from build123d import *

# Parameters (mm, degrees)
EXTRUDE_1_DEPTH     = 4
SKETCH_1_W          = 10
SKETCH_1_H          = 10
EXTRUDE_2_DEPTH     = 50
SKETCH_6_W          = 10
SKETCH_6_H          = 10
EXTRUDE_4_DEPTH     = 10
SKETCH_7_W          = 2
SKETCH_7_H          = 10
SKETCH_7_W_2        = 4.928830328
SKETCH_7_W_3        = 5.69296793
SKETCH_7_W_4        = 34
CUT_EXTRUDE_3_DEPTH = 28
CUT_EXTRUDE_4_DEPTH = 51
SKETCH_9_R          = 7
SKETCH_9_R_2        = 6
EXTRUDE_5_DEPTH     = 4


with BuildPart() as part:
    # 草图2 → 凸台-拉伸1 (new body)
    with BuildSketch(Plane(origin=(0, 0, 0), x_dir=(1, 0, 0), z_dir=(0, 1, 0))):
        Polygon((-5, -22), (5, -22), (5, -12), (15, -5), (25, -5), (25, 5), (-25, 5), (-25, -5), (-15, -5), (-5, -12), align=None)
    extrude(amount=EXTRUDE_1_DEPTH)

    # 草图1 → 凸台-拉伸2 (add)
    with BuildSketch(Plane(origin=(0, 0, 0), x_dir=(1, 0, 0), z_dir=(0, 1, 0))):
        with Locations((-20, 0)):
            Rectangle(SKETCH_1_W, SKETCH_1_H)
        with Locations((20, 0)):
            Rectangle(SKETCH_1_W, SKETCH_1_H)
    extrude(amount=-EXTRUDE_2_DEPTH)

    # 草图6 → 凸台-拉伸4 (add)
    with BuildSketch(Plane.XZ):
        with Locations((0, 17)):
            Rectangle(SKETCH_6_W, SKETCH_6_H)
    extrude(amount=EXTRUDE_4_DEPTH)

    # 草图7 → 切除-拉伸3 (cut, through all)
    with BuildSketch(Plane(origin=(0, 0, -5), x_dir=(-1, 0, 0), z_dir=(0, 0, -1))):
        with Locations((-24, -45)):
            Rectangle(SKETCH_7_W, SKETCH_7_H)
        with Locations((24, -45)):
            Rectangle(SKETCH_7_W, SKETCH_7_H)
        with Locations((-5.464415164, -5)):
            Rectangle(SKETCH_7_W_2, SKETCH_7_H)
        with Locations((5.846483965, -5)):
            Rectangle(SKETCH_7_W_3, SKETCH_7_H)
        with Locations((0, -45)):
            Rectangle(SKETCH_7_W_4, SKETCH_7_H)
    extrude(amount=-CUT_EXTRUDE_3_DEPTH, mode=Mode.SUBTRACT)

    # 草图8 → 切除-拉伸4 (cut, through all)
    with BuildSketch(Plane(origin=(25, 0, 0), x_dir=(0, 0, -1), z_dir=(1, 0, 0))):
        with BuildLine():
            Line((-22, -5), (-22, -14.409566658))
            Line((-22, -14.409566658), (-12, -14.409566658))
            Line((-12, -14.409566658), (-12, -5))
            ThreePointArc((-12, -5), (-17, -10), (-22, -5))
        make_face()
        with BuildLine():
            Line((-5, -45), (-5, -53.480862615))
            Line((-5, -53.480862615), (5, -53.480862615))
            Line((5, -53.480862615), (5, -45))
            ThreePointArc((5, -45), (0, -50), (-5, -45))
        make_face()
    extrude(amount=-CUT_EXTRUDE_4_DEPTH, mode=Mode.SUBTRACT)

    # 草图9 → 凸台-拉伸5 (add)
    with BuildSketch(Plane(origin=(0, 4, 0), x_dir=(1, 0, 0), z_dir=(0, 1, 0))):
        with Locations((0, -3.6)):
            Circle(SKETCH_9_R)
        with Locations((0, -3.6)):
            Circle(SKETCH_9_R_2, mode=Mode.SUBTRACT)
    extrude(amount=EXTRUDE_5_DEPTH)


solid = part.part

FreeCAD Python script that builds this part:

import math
import FreeCAD as App
import Part
import Sketcher

V = App.Vector

doc = App.newDocument("Part")
body = doc.addObject("PartDesign::Body", "Body")

# Sketch on XZ plane
sketch1 = doc.addObject("Sketcher::SketchObject", "Sketch")
body.addObject(sketch1)
sketch1.AttachmentSupport = (doc.XZ_Plane, [""])
sketch1.MapMode = "FlatFace"
sketch1.addGeometry([
    Part.LineSegment(V(-5, 22, 0), V(5, 22, 0)),  # 0
    Part.LineSegment(V(5, 22, 0), V(5, 12, 0)),  # 1
    Part.LineSegment(V(5, 12, 0), V(15, 5, 0)),  # 2
    Part.LineSegment(V(15, 5, 0), V(25, 5, 0)),  # 3
    Part.LineSegment(V(25, 5, 0), V(25, -5, 0)),  # 4
    Part.LineSegment(V(25, -5, 0), V(-25, -5, 0)),  # 5
    Part.LineSegment(V(-25, -5, 0), V(-25, 5, 0)),  # 6
    Part.LineSegment(V(-25, 5, 0), V(-15, 5, 0)),  # 7
    Part.LineSegment(V(-15, 5, 0), V(-5, 12, 0)),  # 8
    Part.LineSegment(V(-5, 12, 0), V(-5, 22, 0)),  # 9
], False)
sketch1.addConstraint([
    Sketcher.Constraint("Coincident", 0, 2, 1, 1),
    Sketcher.Constraint("Coincident", 1, 2, 2, 1),
    Sketcher.Constraint("Coincident", 2, 2, 3, 1),
    Sketcher.Constraint("Coincident", 3, 2, 4, 1),
    Sketcher.Constraint("Coincident", 4, 2, 5, 1),
    Sketcher.Constraint("Coincident", 5, 2, 6, 1),
    Sketcher.Constraint("Coincident", 6, 2, 7, 1),
    Sketcher.Constraint("Coincident", 7, 2, 8, 1),
    Sketcher.Constraint("Coincident", 8, 2, 9, 1),
    Sketcher.Constraint("Coincident", 9, 2, 0, 1),
    Sketcher.Constraint("Horizontal", 0),
    Sketcher.Constraint("Vertical", 1),
    Sketcher.Constraint("Horizontal", 3),
    Sketcher.Constraint("Vertical", 4),
    Sketcher.Constraint("Horizontal", 5),
    Sketcher.Constraint("Vertical", 6),
    Sketcher.Constraint("Horizontal", 7),
    Sketcher.Constraint("Vertical", 9),
    Sketcher.Constraint("Symmetric", 3, 2, 5, 2, -1, 1),
    Sketcher.Constraint("Symmetric", 2, 2, 7, 2, -2),
    Sketcher.Constraint("Symmetric", 1, 2, 8, 2, -2),
    Sketcher.Constraint("Equal", 0, 3),
    Sketcher.Constraint("Equal", 7, 1),
    Sketcher.Constraint("Equal", 1, 4),
    Sketcher.Constraint("DistanceX", 0, 1, 0, 2, 10.0),
    Sketcher.Constraint("DistanceX", 5, 2, 5, 1, 50.0),
    Sketcher.Constraint("DistanceY", -1, 1, 0, 2, 22.0),
])
pad1 = doc.addObject("PartDesign::Pad", "Pad")
body.addObject(pad1)
pad1.Profile = sketch1
pad1.Length = 4
pad1.Reversed = True

# Sketch on XZ plane
sketch2 = doc.addObject("Sketcher::SketchObject", "Sketch001")
body.addObject(sketch2)
sketch2.AttachmentSupport = (doc.XZ_Plane, [""])
sketch2.MapMode = "FlatFace"
sketch2.addGeometry([
    Part.LineSegment(V(-25, -5, 0), V(-25, 5, 0)),  # 0
    Part.LineSegment(V(-25, 5, 0), V(-15, 5, 0)),  # 1
    Part.LineSegment(V(-15, 5, 0), V(-15, -5, 0)),  # 2
    Part.LineSegment(V(-15, -5, 0), V(-25, -5, 0)),  # 3
    Part.LineSegment(V(15, -5, 0), V(15, 5, 0)),  # 4
    Part.LineSegment(V(15, 5, 0), V(25, 5, 0)),  # 5
    Part.LineSegment(V(25, 5, 0), V(25, -5, 0)),  # 6
    Part.LineSegment(V(25, -5, 0), V(15, -5, 0)),  # 7
], False)
sketch2.addConstraint([
    Sketcher.Constraint("Coincident", 0, 2, 1, 1),
    Sketcher.Constraint("Coincident", 1, 2, 2, 1),
    Sketcher.Constraint("Coincident", 2, 2, 3, 1),
    Sketcher.Constraint("Coincident", 3, 2, 0, 1),
    Sketcher.Constraint("Coincident", 4, 2, 5, 1),
    Sketcher.Constraint("Coincident", 5, 2, 6, 1),
    Sketcher.Constraint("Coincident", 6, 2, 7, 1),
    Sketcher.Constraint("Coincident", 7, 2, 4, 1),
    Sketcher.Constraint("Vertical", 0),
    Sketcher.Constraint("Horizontal", 1),
    Sketcher.Constraint("Vertical", 2),
    Sketcher.Constraint("Horizontal", 3),
    Sketcher.Constraint("Vertical", 4),
    Sketcher.Constraint("Horizontal", 5),
    Sketcher.Constraint("Vertical", 6),
    Sketcher.Constraint("Horizontal", 7),
    Sketcher.Constraint("Symmetric", 2, 2, 4, 2, -1, 1),
    Sketcher.Constraint("Symmetric", 0, 2, 6, 2, -1, 1),
    Sketcher.Constraint("Horizontal", 1, 2, 4, 2),
    Sketcher.Constraint("Equal", 7, 0),
    Sketcher.Constraint("DistanceX", 1, 1, 1, 2, 10.0),
    Sketcher.Constraint("DistanceX", 0, 2, -1, 1, 25.0),
])
pad2 = doc.addObject("PartDesign::Pad", "Pad001")
body.addObject(pad2)
pad2.Profile = sketch2
pad2.Length = 50

# Sketch on XZ plane
sketch3 = doc.addObject("Sketcher::SketchObject", "Sketch002")
body.addObject(sketch3)
sketch3.AttachmentSupport = (doc.XZ_Plane, [""])
sketch3.MapMode = "FlatFace"
sketch3.addGeometry([
    Part.LineSegment(V(-5, 22, 0), V(-5, 12, 0)),
    Part.LineSegment(V(-5, 12, 0), V(5, 12, 0)),
    Part.LineSegment(V(5, 12, 0), V(5, 22, 0)),
    Part.LineSegment(V(5, 22, 0), V(-5, 22, 0)),
], False)
sketch3.addConstraint([
    Sketcher.Constraint("Coincident", 0, 2, 1, 1),
    Sketcher.Constraint("Coincident", 1, 2, 2, 1),
    Sketcher.Constraint("Coincident", 2, 2, 3, 1),
    Sketcher.Constraint("Coincident", 3, 2, 0, 1),
    Sketcher.Constraint("Vertical", 0),
    Sketcher.Constraint("Horizontal", 1),
    Sketcher.Constraint("Vertical", 2),
    Sketcher.Constraint("Horizontal", 3),
    Sketcher.Constraint("Equal", 3, 0),
    Sketcher.Constraint("DistanceX", 1, 1, 1, 2, 10.0),
    Sketcher.Constraint("DistanceX", 0, 2, -1, 1, 5.0),
    Sketcher.Constraint("DistanceY", -1, 1, 0, 2, 12.0),
])
pad3 = doc.addObject("PartDesign::Pad", "Pad002")
body.addObject(pad3)
pad3.Profile = sketch3
pad3.Length = 10

# Sketch on XY plane
sketch4 = doc.addObject("Sketcher::SketchObject", "Sketch003")
body.addObject(sketch4)
sketch4.AttachmentSupport = (doc.XY_Plane, [""])
sketch4.MapMode = "FlatFace"
sketch4.AttachmentOffset = App.Placement(V(0, 0, -5), App.Rotation())
sketch4.addGeometry([
    Part.LineSegment(V(25, -40, 0), V(25, -50, 0)),  # 0
    Part.LineSegment(V(25, -50, 0), V(23, -50, 0)),  # 1
    Part.LineSegment(V(23, -50, 0), V(23, -40, 0)),  # 2
    Part.LineSegment(V(23, -40, 0), V(25, -40, 0)),  # 3
    Part.LineSegment(V(-23, -40, 0), V(-23, -50, 0)),  # 4
    Part.LineSegment(V(-23, -50, 0), V(-25, -50, 0)),  # 5
    Part.LineSegment(V(-25, -50, 0), V(-25, -40, 0)),  # 6
    Part.LineSegment(V(-25, -40, 0), V(-23, -40, 0)),  # 7
    Part.LineSegment(V(7.9, 0, 0), V(7.9, -10, 0)),  # 8
    Part.LineSegment(V(7.9, -10, 0), V(3, -10, 0)),  # 9
    Part.LineSegment(V(3, -10, 0), V(3, 0, 0)),  # 10
    Part.LineSegment(V(3, 0, 0), V(7.9, 0, 0)),  # 11
    Part.LineSegment(V(-3, 0, 0), V(-3, -10, 0)),  # 12
    Part.LineSegment(V(-3, -10, 0), V(-8.7, -10, 0)),  # 13
    Part.LineSegment(V(-8.7, -10, 0), V(-8.7, 0, 0)),  # 14
    Part.LineSegment(V(-8.7, 0, 0), V(-3, 0, 0)),  # 15
    Part.LineSegment(V(17, -40, 0), V(17, -50, 0)),  # 16
    Part.LineSegment(V(17, -50, 0), V(-17, -50, 0)),  # 17
    Part.LineSegment(V(-17, -50, 0), V(-17, -40, 0)),  # 18
    Part.LineSegment(V(-17, -40, 0), V(17, -40, 0)),  # 19
], False)
sketch4.addConstraint([
    Sketcher.Constraint("Coincident", 0, 2, 1, 1),
    Sketcher.Constraint("Coincident", 1, 2, 2, 1),
    Sketcher.Constraint("Coincident", 2, 2, 3, 1),
    Sketcher.Constraint("Coincident", 3, 2, 0, 1),
    Sketcher.Constraint("Coincident", 4, 2, 5, 1),
    Sketcher.Constraint("Coincident", 5, 2, 6, 1),
    Sketcher.Constraint("Coincident", 6, 2, 7, 1),
    Sketcher.Constraint("Coincident", 7, 2, 4, 1),
    Sketcher.Constraint("Coincident", 8, 2, 9, 1),
    Sketcher.Constraint("Coincident", 9, 2, 10, 1),
    Sketcher.Constraint("Coincident", 10, 2, 11, 1),
    Sketcher.Constraint("Coincident", 11, 2, 8, 1),
    Sketcher.Constraint("Coincident", 12, 2, 13, 1),
    Sketcher.Constraint("Coincident", 13, 2, 14, 1),
    Sketcher.Constraint("Coincident", 14, 2, 15, 1),
    Sketcher.Constraint("Coincident", 15, 2, 12, 1),
    Sketcher.Constraint("Coincident", 16, 2, 17, 1),
    Sketcher.Constraint("Coincident", 17, 2, 18, 1),
    Sketcher.Constraint("Coincident", 18, 2, 19, 1),
    Sketcher.Constraint("Coincident", 19, 2, 16, 1),
    Sketcher.Constraint("Vertical", 0),
    Sketcher.Constraint("Horizontal", 1),
    Sketcher.Constraint("Vertical", 2),
    Sketcher.Constraint("Horizontal", 3),
    Sketcher.Constraint("Vertical", 4),
    Sketcher.Constraint("Horizontal", 5),
    Sketcher.Constraint("Vertical", 6),
    Sketcher.Constraint("Horizontal", 7),
    Sketcher.Constraint("Vertical", 8),
    Sketcher.Constraint("Horizontal", 9),
    Sketcher.Constraint("Vertical", 10),
    Sketcher.Constraint("Horizontal", 11),
    Sketcher.Constraint("Vertical", 12),
    Sketcher.Constraint("Horizontal", 13),
    Sketcher.Constraint("Vertical", 14),
    Sketcher.Constraint("Horizontal", 15),
    Sketcher.Constraint("Vertical", 16),
    Sketcher.Constraint("Horizontal", 17),
    Sketcher.Constraint("Vertical", 18),
    Sketcher.Constraint("Horizontal", 19),
    Sketcher.Constraint("Symmetric", 10, 2, 15, 2, -1, 1),
    Sketcher.Constraint("Symmetric", 1, 2, 4, 2, -2),
    Sketcher.Constraint("Symmetric", 3, 2, 6, 2, -2),
    Sketcher.Constraint("PointOnObject", 10, 2, -1),
    Sketcher.Constraint("Horizontal", 9, 2, 12, 2),
    Sketcher.Constraint("Horizontal", 5, 2, 16, 2),
    Sketcher.Constraint("Horizontal", 7, 2, 18, 2),
    Sketcher.Constraint("Equal", 6, 8),
    Sketcher.Constraint("DistanceX", 1, 2, 1, 1, 2.0),
    Sketcher.Constraint("DistanceX", 17, 2, 17, 1, 34.0),
    Sketcher.Constraint("DistanceY", 0, 2, 0, 1, 10.0),
    Sketcher.Constraint("DistanceX", -1, 1, 0, 2, 25.0),
    Sketcher.Constraint("DistanceY", 0, 2, -1, 1, 50.0),
    Sketcher.Constraint("DistanceX", -1, 1, 9, 2, 3.0),
    Sketcher.Constraint("DistanceX", -1, 1, 16, 2, 17.0),
    Sketcher.Constraint("DistanceX", 9, 2, 9, 1, 4.92883),
    Sketcher.Constraint("DistanceX", 13, 2, 8, 2, 16.621798),
])
pocket1 = doc.addObject("PartDesign::Pocket", "Pocket")
body.addObject(pocket1)
pocket1.Profile = sketch4
pocket1.Type = "ThroughAll"
pocket1.Reversed = True

# Sketch on YZ plane
sketch5 = doc.addObject("Sketcher::SketchObject", "Sketch004")
body.addObject(sketch5)
sketch5.AttachmentSupport = (doc.YZ_Plane, [""])
sketch5.MapMode = "FlatFace"
sketch5.AttachmentOffset = App.Placement(V(0, 0, 25), App.Rotation())
sketch5.addGeometry([
    Part.LineSegment(V(-5, 22, 0), V(-14, 22, 0)),  # 0
    Part.LineSegment(V(-14, 22, 0), V(-14, 12, 0)),  # 1
    Part.LineSegment(V(-14, 12, 0), V(-5, 12, 0)),  # 2
    Part.ArcOfCircle(Part.Circle(V(-5, 17, 0), V(0, 0, 1), 5), math.radians(90), math.radians(270)),  # 3
    Part.LineSegment(V(-45, 5, 0), V(-53, 5, 0)),  # 4
    Part.LineSegment(V(-53, 5, 0), V(-53, -5, 0)),  # 5
    Part.LineSegment(V(-53, -5, 0), V(-45, -5, 0)),  # 6
    Part.ArcOfCircle(Part.Circle(V(-45, 0, 0), V(0, 0, 1), 5), math.radians(90), math.radians(270)),  # 7
], False)
sketch5.addConstraint([
    Sketcher.Constraint("Coincident", 0, 2, 1, 1),
    Sketcher.Constraint("Coincident", 1, 2, 2, 1),
    Sketcher.Constraint("Tangent", 2, 2, 3, 2),
    Sketcher.Constraint("Tangent", 3, 1, 0, 1),
    Sketcher.Constraint("Coincident", 4, 2, 5, 1),
    Sketcher.Constraint("Coincident", 5, 2, 6, 1),
    Sketcher.Constraint("Tangent", 6, 2, 7, 2),
    Sketcher.Constraint("Tangent", 7, 1, 4, 1),
    Sketcher.Constraint("Horizontal", 0),
    Sketcher.Constraint("Vertical", 1),
    Sketcher.Constraint("Horizontal", 2),
    Sketcher.Constraint("Horizontal", 4),
    Sketcher.Constraint("Vertical", 5),
    Sketcher.Constraint("Horizontal", 6),
    Sketcher.Constraint("Equal", 3, 7),
    Sketcher.Constraint("PointOnObject", 7, 3, -1),
    Sketcher.Constraint("Radius", 3, 5.0),
    Sketcher.Constraint("DistanceX", 3, 3, -1, 1, 5.0),
    Sketcher.Constraint("DistanceY", -1, 1, 3, 3, 17.0),
    Sketcher.Constraint("DistanceX", 7, 3, -1, 1, 45.0),
    Sketcher.Constraint("DistanceX", 0, 2, 0, 1, 9.409567),
    Sketcher.Constraint("DistanceX", 4, 2, 4, 1, 8.480863),
])
pocket2 = doc.addObject("PartDesign::Pocket", "Pocket001")
body.addObject(pocket2)
pocket2.Profile = sketch5
pocket2.Type = "ThroughAll"

# Sketch on XZ plane
sketch6 = doc.addObject("Sketcher::SketchObject", "Sketch005")
body.addObject(sketch6)
sketch6.AttachmentSupport = (doc.XZ_Plane, [""])
sketch6.MapMode = "FlatFace"
sketch6.AttachmentOffset = App.Placement(V(0, 0, -4), App.Rotation())
sketch6.addGeometry([
    Part.Circle(V(0, 4, 0), V(0, 0, 1), 7),
    Part.Circle(V(0, 4, 0), V(0, 0, 1), 6),
], False)
sketch6.addConstraint([
    Sketcher.Constraint("Coincident", 1, 3, 0, 3),
    Sketcher.Constraint("PointOnObject", 0, 3, -2),
    Sketcher.Constraint("Diameter", 0, 14.0),
    Sketcher.Constraint("Diameter", 1, 12.0),
    Sketcher.Constraint("DistanceY", -1, 1, 0, 3, 3.6),
])
pad4 = doc.addObject("PartDesign::Pad", "Pad003")
body.addObject(pad4)
pad4.Profile = sketch6
pad4.Length = 4
pad4.Reversed = True

doc.recompute()
